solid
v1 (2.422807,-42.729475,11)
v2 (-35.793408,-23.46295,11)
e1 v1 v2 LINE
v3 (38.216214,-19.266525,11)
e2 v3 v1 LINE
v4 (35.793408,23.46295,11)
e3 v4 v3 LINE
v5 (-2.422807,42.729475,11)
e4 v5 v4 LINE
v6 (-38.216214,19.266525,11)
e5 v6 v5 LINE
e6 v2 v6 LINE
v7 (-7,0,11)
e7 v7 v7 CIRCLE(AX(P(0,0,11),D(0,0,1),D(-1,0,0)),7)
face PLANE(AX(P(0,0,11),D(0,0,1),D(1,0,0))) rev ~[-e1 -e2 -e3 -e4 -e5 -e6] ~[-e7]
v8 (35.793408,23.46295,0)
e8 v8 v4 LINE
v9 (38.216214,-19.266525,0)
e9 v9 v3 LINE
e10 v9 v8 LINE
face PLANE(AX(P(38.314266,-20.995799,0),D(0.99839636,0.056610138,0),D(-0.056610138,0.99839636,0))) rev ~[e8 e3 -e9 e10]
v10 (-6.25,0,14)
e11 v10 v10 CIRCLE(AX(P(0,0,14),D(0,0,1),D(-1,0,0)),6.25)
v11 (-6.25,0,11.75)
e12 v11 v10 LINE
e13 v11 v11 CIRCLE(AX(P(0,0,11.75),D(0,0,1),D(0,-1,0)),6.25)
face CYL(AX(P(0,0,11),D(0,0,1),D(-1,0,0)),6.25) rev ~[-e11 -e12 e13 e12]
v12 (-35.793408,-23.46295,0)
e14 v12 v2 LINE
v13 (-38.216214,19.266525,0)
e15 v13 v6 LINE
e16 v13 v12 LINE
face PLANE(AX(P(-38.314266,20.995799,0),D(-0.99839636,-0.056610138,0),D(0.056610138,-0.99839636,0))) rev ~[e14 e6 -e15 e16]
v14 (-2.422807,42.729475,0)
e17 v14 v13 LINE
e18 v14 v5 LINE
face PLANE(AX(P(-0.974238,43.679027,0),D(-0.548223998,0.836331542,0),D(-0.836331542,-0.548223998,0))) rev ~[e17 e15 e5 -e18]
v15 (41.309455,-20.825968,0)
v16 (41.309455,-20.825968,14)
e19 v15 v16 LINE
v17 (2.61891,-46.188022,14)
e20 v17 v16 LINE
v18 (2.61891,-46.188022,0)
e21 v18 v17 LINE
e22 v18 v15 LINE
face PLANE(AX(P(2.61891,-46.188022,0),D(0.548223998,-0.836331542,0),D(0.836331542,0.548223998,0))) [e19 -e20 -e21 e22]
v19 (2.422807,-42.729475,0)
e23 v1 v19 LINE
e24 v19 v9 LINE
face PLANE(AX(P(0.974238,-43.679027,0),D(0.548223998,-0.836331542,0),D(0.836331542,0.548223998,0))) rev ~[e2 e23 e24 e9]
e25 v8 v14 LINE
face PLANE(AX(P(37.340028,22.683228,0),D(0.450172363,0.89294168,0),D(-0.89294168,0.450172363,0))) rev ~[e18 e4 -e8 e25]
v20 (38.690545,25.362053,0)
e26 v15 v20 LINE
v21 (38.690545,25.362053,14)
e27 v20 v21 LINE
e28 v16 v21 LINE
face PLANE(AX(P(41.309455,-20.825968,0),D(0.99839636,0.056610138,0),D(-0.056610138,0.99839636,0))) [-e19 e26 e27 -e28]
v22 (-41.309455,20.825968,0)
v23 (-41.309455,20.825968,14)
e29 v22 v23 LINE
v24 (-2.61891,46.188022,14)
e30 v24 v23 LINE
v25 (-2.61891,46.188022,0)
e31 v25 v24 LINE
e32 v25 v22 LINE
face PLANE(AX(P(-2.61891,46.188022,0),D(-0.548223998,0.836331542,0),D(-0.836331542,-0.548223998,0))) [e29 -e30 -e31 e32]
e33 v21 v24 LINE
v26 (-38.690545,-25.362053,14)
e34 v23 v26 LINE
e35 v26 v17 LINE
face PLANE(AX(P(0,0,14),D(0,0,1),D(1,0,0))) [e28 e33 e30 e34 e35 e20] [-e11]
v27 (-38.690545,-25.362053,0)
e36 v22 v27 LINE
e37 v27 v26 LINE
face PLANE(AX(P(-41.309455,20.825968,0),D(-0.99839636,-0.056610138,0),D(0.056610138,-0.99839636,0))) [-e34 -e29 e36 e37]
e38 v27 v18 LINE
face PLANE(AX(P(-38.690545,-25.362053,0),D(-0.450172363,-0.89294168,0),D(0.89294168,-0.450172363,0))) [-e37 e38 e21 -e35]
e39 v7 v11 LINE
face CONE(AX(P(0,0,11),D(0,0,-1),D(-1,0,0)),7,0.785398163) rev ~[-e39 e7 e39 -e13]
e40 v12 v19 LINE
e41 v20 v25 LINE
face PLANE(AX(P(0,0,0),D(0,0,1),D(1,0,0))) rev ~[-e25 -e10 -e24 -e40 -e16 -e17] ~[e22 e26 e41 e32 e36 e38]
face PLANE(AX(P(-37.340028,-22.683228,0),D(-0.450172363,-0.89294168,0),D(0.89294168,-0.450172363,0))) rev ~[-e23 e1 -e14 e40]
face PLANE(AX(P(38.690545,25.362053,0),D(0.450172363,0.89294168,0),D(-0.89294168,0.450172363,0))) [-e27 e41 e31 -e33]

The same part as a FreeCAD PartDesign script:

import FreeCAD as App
import Part
import Sketcher
from FreeCAD import Vector


def faces_at(feature, points):
    """Names of the faces that lie closest to the given points."""
    faces = feature.Shape.Faces
    near = lambda p: min(range(len(faces)), key=lambda i: faces[i].distToShape(Part.Vertex(*p))[0])
    return sorted({f"Face{near(p) + 1}" for p in points})


def add_polygon(sketch, points):
    """Adds a closed chain of lines whose ends are joined by coincident constraints."""
    first, n = sketch.GeometryCount, len(points)
    for a, b in zip(points, points[1:] + points[:1]):
        sketch.addGeometry(Part.LineSegment(App.Vector(*a, 0), App.Vector(*b, 0)), False)
    for i in range(n):
        sketch.addConstraint(Sketcher.Constraint("Coincident", first + i, 2, first + (i + 1) % n, 1))

doc = App.newDocument("Part")
body = doc.addObject("PartDesign::Body", "Body")

# Sketch on XY plane
sketch1 = body.newObject("Sketcher::SketchObject", "Sketch")
sketch1.AttachmentSupport = (doc.getObject("XY_Plane"), [""])
sketch1.MapMode = "FlatFace"
add_polygon(sketch1, [(3, -46), (41, -21), (39, 25), (-3, 46), (-41, 21), (-39, -25)])  # lines 0-5
sketch1.addConstraint(Sketcher.Constraint("Symmetric", 0, 2, 3, 2, -1, 1))
sketch1.addConstraint(Sketcher.Constraint("Symmetric", 1, 2, 4, 2, -1, 1))
sketch1.addConstraint(Sketcher.Constraint("Symmetric", 2, 2, 5, 2, -1, 1))
sketch1.addConstraint(Sketcher.Constraint("Equal", 0, 1))
sketch1.addConstraint(Sketcher.Constraint("Equal", 1, 2))
sketch1.addConstraint(Sketcher.Constraint("DistanceX", 3, 2, 1, 2, 80.0))
sketch1.addConstraint(Sketcher.Constraint("Distance", 0, 46.262209))
sketch1.addConstraint(Sketcher.Constraint("DistanceY", 0, 2, -1, 1, 20.825968))
sketch1.addConstraint(Sketcher.Constraint("DistanceX", 2, 2, -1, 1, 2.61891))

# Sketch on XZ plane
sketch2 = body.newObject("Sketcher::SketchObject", "Sketch001")
sketch2.AttachmentSupport = (doc.getObject("XZ_Plane"), [""])
sketch2.MapMode = "FlatFace"
sketch2.addGeometry(Part.LineSegment(Vector(0, 0, 0), Vector(0, 14, 0)), False)
sketch2.addConstraint(Sketcher.Constraint("Vertical", 0))
sketch2.addConstraint(Sketcher.Constraint("Coincident", 0, 1, -1, 1))
sketch2.addConstraint(Sketcher.Constraint("DistanceY", 0, 1, 0, 2, 14.0))
doc.recompute()

additivepipe = body.newObject("PartDesign::AdditivePipe", "AdditivePipe")
additivepipe.Profile = sketch1
additivepipe.Spine = (sketch2, ["Edge1"])
doc.recompute()

thickness = body.newObject("PartDesign::Thickness", "Thickness")
thickness.Base = (additivepipe, faces_at(additivepipe, [(0, 0, 0)]))
thickness.Value = 3
thickness.Reversed = True
thickness.Join = "Arc"

# Sketch on XY plane
sketch3 = body.newObject("Sketcher::SketchObject", "Sketch002")
sketch3.AttachmentSupport = (doc.getObject("XY_Plane"), [""])
sketch3.MapMode = "FlatFace"
sketch3.addGeometry(Part.Circle(Vector(0, 0, 0), Vector(0, 0, 1), 7), False)
sketch3.addConstraint(Sketcher.Constraint("Coincident", 0, 3, -1, 1))
sketch3.addConstraint(Sketcher.Constraint("Diameter", 0, 14.0))
doc.recompute()
hole = body.newObject("PartDesign::Hole", "Hole")
hole.Profile = sketch3
hole.ThreadType = "None"
hole.Diameter = 14
hole.DepthType = "Dimension"
hole.Depth = 11
hole.DrillPoint = "Flat"
hole.Reversed = True

# Sketch on XY plane
sketch4 = body.newObject("Sketcher::SketchObject", "Sketch003")
sketch4.AttachmentSupport = (doc.getObject("XY_Plane"), [""])
sketch4.MapMode = "FlatFace"
sketch4.AttachmentOffset = App.Placement(Vector(0, 0, 11), App.Rotation())
sketch4.addGeometry(Part.Circle(Vector(0, 0, 0), Vector(0, 0, 1), 6), False)
sketch4.addConstraint(Sketcher.Constraint("Coincident", 0, 3, -1, 1))
sketch4.addConstraint(Sketcher.Constraint("Diameter", 0, 12.5))
doc.recompute()
hole2 = body.newObject("PartDesign::Hole", "Hole001")
hole2.Profile = sketch4
hole2.ThreadType = "None"
hole2.Diameter = 12.5
hole2.DepthType = "Dimension"
hole2.Depth = 5
hole2.DrillPoint = "Angled"
hole2.DrillPointAngle = 118
hole2.HoleCutType = "Countersink"
hole2.HoleCutDiameter = 14
hole2.HoleCutCountersinkAngle = 90
hole2.Reversed = True

doc.recompute()
